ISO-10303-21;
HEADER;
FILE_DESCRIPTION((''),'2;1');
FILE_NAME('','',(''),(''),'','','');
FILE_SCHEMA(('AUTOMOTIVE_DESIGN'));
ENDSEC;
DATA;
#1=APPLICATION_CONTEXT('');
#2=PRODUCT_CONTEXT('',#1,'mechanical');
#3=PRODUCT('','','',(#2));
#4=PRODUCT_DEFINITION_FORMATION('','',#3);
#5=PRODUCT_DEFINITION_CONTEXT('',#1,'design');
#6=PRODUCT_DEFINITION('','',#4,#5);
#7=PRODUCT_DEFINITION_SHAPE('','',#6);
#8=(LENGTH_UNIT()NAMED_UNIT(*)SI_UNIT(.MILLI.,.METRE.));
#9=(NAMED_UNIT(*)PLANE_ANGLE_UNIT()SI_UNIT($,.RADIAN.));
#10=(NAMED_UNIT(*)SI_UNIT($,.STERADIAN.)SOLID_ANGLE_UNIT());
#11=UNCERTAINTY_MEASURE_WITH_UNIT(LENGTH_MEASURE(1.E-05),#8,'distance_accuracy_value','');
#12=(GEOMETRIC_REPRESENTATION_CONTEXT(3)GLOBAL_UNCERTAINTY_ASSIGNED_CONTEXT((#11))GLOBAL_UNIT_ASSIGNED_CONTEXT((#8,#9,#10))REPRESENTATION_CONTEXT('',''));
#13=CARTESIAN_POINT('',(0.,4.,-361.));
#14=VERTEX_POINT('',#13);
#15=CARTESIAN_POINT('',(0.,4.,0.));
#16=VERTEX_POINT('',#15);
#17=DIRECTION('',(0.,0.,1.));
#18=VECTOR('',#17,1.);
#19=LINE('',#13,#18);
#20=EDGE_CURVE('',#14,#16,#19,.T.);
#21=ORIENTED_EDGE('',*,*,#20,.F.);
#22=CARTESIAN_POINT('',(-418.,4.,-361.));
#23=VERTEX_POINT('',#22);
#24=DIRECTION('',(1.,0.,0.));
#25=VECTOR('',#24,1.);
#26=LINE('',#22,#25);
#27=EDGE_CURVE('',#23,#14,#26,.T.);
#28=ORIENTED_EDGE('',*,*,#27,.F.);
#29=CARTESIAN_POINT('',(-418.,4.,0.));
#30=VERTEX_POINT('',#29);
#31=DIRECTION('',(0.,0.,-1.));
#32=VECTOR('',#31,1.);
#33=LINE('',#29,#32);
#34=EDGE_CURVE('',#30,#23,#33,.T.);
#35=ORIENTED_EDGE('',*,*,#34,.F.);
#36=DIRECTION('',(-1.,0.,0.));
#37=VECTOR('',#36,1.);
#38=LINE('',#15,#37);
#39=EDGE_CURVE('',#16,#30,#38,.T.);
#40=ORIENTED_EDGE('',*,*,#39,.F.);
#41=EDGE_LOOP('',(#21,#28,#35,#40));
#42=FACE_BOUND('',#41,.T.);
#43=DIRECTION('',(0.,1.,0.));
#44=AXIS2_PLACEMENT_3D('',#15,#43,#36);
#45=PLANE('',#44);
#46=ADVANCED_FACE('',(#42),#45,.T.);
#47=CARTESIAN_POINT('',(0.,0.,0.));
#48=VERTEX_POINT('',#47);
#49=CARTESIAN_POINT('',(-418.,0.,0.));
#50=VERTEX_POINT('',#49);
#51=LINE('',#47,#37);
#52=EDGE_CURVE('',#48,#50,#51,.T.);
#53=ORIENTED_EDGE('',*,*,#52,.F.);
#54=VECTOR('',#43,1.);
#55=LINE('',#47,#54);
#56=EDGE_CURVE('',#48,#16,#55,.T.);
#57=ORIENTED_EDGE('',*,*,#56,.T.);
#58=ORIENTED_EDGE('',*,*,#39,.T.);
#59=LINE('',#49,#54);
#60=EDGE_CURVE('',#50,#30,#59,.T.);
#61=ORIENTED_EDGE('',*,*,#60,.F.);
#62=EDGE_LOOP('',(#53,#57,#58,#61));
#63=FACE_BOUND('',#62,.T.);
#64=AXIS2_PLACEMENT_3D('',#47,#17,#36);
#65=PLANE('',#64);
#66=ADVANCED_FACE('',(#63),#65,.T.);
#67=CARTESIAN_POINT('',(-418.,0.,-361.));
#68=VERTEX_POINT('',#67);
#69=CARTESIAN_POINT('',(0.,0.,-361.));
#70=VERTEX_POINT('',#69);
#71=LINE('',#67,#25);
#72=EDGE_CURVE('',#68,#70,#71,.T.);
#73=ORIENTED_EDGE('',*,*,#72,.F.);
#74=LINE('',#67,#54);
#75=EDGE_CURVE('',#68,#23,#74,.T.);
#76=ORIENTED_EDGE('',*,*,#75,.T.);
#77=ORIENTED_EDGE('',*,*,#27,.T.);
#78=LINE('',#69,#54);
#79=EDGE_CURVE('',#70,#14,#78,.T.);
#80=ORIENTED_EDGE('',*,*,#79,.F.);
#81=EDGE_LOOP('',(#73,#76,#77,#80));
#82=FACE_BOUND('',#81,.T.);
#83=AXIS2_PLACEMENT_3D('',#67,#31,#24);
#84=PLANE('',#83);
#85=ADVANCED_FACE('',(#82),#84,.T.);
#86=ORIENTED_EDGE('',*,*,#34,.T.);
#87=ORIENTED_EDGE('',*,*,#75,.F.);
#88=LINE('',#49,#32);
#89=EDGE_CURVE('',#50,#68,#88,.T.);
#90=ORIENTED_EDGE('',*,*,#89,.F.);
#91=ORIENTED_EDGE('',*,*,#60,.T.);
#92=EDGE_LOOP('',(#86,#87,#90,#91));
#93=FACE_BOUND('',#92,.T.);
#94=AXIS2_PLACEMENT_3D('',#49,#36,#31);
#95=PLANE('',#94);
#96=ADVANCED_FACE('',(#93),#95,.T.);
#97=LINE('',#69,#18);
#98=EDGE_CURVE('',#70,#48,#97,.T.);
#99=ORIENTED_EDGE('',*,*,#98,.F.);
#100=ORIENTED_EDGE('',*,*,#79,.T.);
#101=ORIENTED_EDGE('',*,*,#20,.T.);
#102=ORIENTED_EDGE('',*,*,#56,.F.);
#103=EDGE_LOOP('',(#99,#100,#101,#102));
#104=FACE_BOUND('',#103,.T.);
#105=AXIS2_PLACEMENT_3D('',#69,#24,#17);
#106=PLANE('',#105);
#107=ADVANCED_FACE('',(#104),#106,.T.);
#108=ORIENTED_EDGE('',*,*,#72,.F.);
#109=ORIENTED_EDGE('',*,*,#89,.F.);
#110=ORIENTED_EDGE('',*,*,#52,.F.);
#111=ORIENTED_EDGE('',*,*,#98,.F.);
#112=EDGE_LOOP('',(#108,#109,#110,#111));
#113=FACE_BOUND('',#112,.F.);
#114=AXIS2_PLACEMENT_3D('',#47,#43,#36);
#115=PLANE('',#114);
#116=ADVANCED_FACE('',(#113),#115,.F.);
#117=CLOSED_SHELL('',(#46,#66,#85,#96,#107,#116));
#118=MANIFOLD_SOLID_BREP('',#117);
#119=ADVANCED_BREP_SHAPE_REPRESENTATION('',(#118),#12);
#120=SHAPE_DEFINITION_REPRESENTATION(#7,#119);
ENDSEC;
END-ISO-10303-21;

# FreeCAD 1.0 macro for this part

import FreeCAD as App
import Part
import Sketcher

V = App.Vector

doc = App.newDocument("Part")
body = doc.addObject("PartDesign::Body", "Body")

sketch1 = body.newObject("Sketcher::SketchObject", "Sketch")
sketch1.AttachmentSupport = (doc.getObject("XZ_Plane"), [""])
sketch1.MapMode = "FlatFace"
sketch1.addGeometry(Part.LineSegment(V(-418, 0, 0), V(0, 0, 0)), False)
sketch1.addGeometry(Part.LineSegment(V(0, 0, 0), V(0, -361, 0)), False)
sketch1.addGeometry(Part.LineSegment(V(0, -361, 0), V(-418, -361, 0)), False)
sketch1.addGeometry(Part.LineSegment(V(-418, -361, 0), V(-418, 0, 0)), False)
sketch1.addConstraint(Sketcher.Constraint("Coincident", 0, 2, 1, 1))
sketch1.addConstraint(Sketcher.Constraint("Coincident", 1, 2, 2, 1))
sketch1.addConstraint(Sketcher.Constraint("Coincident", 2, 2, 3, 1))
sketch1.addConstraint(Sketcher.Constraint("Coincident", 3, 2, 0, 1))
sketch1.addConstraint(Sketcher.Constraint("Horizontal", 0))
sketch1.addConstraint(Sketcher.Constraint("Vertical", 1))
sketch1.addConstraint(Sketcher.Constraint("Horizontal", 2))
sketch1.addConstraint(Sketcher.Constraint("Vertical", 3))
sketch1.addConstraint(Sketcher.Constraint("Coincident", 0, 2, -1, 1))
sketch1.addConstraint(Sketcher.Constraint("DistanceX", 0, 1, 0, 2, 418.0))
sketch1.addConstraint(Sketcher.Constraint("DistanceY", 1, 2, 1, 1, 361.0))
pad1 = body.newObject("PartDesign::Pad", "Pad")
pad1.Profile = sketch1
pad1.Length = 4
pad1.Reversed = True

doc.recompute()
